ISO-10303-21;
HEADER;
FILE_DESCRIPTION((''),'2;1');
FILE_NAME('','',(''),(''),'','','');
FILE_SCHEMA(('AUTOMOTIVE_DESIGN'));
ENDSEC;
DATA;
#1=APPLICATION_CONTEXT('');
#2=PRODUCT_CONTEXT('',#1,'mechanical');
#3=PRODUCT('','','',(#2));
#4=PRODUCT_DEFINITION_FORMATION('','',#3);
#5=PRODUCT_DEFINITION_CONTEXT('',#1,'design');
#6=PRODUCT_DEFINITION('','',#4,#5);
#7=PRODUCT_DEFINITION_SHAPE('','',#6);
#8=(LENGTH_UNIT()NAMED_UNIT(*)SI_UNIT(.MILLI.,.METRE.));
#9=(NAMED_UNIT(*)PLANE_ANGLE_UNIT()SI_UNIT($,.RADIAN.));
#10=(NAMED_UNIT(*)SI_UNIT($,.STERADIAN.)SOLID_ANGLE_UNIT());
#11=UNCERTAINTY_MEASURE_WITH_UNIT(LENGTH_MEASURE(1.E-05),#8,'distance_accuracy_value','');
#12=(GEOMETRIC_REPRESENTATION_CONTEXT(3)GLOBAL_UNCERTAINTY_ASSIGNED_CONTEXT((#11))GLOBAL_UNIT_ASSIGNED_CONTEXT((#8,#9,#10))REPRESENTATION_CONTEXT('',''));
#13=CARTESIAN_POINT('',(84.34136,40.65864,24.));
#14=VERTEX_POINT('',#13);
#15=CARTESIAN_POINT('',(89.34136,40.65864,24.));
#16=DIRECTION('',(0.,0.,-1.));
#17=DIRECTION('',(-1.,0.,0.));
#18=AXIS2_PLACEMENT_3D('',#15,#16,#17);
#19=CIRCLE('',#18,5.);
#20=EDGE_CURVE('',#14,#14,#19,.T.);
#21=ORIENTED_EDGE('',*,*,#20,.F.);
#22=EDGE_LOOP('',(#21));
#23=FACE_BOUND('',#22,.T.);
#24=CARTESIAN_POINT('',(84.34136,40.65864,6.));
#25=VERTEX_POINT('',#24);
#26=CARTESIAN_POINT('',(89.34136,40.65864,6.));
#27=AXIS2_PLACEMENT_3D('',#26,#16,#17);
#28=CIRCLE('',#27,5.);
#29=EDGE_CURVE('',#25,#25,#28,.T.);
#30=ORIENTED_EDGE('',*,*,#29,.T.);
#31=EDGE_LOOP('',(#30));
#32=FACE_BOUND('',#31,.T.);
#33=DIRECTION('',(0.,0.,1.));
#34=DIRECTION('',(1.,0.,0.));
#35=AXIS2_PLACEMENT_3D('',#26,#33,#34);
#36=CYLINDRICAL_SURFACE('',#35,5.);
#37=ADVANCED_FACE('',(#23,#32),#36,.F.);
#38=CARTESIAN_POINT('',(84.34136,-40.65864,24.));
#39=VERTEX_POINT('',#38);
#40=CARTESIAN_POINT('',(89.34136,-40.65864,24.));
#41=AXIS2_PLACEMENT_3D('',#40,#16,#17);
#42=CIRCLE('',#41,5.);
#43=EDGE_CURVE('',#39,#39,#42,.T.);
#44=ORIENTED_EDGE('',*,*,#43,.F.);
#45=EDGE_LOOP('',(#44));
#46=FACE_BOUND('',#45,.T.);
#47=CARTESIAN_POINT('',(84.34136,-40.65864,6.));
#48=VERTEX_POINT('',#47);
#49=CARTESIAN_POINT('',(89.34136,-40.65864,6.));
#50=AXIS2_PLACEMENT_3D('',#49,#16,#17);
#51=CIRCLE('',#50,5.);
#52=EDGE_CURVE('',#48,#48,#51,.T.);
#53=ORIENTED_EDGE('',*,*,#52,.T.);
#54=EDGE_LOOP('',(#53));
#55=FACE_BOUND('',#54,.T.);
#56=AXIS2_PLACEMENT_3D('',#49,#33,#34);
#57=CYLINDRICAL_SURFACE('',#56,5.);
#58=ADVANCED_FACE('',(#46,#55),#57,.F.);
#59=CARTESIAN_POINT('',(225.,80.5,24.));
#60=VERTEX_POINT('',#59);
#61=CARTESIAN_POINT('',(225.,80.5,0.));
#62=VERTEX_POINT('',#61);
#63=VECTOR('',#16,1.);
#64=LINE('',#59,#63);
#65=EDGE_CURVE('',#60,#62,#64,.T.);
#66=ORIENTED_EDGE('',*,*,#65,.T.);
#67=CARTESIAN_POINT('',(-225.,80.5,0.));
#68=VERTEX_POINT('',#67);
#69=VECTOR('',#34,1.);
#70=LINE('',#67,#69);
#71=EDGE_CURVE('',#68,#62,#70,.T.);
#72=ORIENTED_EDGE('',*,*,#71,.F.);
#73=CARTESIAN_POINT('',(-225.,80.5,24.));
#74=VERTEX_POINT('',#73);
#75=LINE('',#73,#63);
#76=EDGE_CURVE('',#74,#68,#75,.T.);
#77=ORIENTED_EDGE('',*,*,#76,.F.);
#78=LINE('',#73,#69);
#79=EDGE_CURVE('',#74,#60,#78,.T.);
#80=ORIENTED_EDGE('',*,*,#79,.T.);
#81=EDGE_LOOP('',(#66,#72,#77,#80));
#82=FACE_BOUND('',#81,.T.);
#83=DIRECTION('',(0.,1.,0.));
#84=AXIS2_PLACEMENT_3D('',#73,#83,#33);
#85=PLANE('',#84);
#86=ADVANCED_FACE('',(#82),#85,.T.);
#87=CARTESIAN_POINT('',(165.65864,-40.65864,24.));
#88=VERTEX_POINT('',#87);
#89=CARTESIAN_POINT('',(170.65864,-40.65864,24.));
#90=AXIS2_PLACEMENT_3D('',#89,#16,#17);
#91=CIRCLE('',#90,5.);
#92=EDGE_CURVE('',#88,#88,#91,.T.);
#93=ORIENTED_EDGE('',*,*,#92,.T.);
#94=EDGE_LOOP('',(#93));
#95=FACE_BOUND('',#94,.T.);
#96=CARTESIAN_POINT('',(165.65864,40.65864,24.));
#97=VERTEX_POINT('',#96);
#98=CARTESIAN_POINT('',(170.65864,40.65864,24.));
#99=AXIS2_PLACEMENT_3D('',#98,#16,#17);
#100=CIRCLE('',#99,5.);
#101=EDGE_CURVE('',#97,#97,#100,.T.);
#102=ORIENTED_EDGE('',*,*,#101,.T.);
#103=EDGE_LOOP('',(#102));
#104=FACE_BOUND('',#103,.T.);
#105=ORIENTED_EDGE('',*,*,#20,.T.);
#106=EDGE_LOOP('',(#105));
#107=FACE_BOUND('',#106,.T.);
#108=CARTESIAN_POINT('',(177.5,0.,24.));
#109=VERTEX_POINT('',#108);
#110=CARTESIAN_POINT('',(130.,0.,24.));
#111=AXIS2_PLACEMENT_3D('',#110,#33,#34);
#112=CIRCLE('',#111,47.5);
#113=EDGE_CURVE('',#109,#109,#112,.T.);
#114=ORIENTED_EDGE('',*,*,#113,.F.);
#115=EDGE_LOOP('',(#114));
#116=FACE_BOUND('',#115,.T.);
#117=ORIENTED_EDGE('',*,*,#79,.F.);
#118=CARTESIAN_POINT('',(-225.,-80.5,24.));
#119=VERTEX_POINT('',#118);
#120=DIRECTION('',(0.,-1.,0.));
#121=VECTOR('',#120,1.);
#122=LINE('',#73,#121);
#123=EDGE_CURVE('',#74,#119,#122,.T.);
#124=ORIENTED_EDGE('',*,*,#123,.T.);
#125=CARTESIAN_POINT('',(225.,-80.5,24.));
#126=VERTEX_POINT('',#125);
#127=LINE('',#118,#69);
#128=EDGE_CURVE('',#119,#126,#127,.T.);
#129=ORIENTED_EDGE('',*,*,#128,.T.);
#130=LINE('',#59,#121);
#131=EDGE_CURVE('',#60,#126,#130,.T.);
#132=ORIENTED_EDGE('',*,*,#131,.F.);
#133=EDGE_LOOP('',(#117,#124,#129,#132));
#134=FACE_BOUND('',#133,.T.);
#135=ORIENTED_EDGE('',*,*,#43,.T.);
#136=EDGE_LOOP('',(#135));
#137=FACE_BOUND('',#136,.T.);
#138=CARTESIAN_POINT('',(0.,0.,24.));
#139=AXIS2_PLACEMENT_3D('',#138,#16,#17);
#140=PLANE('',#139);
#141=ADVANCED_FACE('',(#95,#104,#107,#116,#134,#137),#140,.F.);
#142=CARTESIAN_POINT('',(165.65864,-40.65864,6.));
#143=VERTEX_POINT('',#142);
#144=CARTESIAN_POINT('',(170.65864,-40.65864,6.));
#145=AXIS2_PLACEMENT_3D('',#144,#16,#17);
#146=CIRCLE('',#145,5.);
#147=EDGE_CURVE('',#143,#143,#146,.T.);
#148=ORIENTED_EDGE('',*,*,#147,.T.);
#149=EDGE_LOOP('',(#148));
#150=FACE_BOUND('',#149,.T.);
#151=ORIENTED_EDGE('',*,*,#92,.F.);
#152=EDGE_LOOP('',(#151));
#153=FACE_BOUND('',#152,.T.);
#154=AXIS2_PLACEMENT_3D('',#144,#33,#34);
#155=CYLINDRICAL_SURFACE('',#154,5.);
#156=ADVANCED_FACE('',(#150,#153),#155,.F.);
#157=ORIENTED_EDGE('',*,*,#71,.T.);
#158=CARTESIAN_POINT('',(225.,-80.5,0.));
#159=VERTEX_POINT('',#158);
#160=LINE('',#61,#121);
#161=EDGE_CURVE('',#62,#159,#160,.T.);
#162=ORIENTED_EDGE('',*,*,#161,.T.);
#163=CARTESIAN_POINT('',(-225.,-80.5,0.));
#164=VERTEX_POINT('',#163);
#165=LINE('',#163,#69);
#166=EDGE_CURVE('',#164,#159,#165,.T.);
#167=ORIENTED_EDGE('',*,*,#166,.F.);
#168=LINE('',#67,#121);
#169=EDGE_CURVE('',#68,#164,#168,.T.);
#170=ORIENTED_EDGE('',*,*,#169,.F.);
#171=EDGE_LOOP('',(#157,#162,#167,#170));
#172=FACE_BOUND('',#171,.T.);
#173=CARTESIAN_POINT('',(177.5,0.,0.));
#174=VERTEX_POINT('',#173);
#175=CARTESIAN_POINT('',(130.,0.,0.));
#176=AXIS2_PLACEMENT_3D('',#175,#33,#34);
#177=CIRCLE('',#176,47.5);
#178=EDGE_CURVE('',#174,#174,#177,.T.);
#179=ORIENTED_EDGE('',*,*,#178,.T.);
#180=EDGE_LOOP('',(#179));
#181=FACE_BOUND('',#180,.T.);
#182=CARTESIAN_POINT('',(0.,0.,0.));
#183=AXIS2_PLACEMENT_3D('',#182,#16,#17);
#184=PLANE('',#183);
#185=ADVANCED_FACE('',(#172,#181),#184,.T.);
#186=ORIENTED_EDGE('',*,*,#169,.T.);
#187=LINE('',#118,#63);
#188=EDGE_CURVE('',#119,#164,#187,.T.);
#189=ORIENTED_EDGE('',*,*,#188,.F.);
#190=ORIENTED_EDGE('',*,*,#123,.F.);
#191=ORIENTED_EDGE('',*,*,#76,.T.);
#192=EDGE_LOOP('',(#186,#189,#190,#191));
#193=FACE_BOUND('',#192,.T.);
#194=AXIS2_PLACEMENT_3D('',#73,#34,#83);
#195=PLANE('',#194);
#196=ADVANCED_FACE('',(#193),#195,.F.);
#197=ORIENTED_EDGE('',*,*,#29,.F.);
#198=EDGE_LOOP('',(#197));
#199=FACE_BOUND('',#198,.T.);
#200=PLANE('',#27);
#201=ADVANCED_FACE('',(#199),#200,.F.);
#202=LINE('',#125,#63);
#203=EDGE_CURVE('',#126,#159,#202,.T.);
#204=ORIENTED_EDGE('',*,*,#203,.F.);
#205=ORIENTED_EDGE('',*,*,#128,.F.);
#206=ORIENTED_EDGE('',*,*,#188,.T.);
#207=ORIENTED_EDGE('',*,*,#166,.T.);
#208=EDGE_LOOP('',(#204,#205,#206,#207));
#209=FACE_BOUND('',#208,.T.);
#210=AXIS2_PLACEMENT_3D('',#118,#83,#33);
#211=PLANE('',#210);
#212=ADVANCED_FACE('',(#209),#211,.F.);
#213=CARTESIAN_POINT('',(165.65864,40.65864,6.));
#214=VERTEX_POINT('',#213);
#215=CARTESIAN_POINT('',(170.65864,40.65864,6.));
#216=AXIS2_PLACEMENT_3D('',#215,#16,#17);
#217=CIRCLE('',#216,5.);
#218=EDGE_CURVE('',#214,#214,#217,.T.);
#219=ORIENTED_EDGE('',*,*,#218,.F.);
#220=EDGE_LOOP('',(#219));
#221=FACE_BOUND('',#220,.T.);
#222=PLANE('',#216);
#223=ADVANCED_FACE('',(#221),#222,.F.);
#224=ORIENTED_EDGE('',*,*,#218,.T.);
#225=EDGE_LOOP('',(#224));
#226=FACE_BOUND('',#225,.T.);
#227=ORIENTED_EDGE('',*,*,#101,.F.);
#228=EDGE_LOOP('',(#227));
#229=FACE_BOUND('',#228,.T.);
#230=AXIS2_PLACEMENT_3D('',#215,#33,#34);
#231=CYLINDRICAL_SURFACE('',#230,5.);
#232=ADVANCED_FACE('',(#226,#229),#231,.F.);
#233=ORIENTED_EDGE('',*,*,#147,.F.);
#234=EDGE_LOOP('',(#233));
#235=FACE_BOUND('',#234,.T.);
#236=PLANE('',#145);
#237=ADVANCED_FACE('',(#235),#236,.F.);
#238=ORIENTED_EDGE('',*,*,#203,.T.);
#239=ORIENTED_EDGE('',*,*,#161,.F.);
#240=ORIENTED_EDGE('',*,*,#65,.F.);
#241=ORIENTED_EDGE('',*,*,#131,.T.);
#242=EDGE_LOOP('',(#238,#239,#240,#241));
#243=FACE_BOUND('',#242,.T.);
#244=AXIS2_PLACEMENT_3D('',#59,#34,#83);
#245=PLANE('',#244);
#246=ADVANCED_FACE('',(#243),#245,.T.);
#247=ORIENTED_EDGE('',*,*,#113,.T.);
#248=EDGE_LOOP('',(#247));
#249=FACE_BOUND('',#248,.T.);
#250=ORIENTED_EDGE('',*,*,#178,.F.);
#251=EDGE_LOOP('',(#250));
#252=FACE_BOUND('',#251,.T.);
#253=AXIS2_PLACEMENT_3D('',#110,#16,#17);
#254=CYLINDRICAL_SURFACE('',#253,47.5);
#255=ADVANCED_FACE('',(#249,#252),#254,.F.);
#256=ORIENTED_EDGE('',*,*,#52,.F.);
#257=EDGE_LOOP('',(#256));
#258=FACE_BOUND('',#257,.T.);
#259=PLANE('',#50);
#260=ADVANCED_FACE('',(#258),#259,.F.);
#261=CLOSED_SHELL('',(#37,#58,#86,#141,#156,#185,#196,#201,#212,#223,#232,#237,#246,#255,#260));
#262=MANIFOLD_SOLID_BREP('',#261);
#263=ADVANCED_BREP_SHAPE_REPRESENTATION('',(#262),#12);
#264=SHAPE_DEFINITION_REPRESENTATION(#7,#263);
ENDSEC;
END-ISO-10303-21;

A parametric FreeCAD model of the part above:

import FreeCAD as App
import Part
import Sketcher
from FreeCAD import Vector
Q = App.Units.Quantity

doc = App.newDocument("Part")
body = doc.addObject("PartDesign::Body", "Body")

# Sketch on XY plane
sketch1 = body.newObject("Sketcher::SketchObject", "Sketch")
sketch1.AttachmentSupport = (doc.getObject("XY_Plane"), [""])
sketch1.MapMode = "FlatFace"
sketch1.addGeometry(Part.LineSegment(Vector(-225, 80, 0), Vector(-225, -80, 0)), False)
sketch1.addGeometry(Part.LineSegment(Vector(-225, -80, 0), Vector(225, -80, 0)), False)
sketch1.addGeometry(Part.LineSegment(Vector(225, -80, 0), Vector(225, 80, 0)), False)
sketch1.addGeometry(Part.LineSegment(Vector(225, 80, 0), Vector(-225, 80, 0)), False)
sketch1.addGeometry(Part.Circle(Vector(130, 0, 0), Vector(0, 0, 1), 48), False)
sketch1.addConstraint(Sketcher.Constraint("Coincident", 0, 2, 1, 1))
sketch1.addConstraint(Sketcher.Constraint("Coincident", 1, 2, 2, 1))
sketch1.addConstraint(Sketcher.Constraint("Coincident", 2, 2, 3, 1))
sketch1.addConstraint(Sketcher.Constraint("Coincident", 3, 2, 0, 1))
sketch1.addConstraint(Sketcher.Constraint("Vertical", 0))
sketch1.addConstraint(Sketcher.Constraint("Horizontal", 1))
sketch1.addConstraint(Sketcher.Constraint("Vertical", 2))
sketch1.addConstraint(Sketcher.Constraint("Horizontal", 3))
sketch1.addConstraint(Sketcher.Constraint("Symmetric", 0, 2, 2, 2, -1, 1))
sketch1.addConstraint(Sketcher.Constraint("PointOnObject", 4, 3, -1))
sketch1.addConstraint(Sketcher.Constraint("Diameter", 4, Q("95 mm")))
sketch1.addConstraint(Sketcher.Constraint("DistanceX", 1, 1, 1, 2, Q("450 mm")))
sketch1.addConstraint(Sketcher.Constraint("DistanceY", 0, 2, 0, 1, Q("161 mm")))
sketch1.addConstraint(Sketcher.Constraint("DistanceX", -1, 1, 4, 3, Q("130 mm")))
pad1 = body.newObject("PartDesign::Pad", "Pad")
pad1.Profile = sketch1
pad1.Length = 24

# Sketch on XY plane
sketch2 = body.newObject("Sketcher::SketchObject", "Sketch001")
sketch2.AttachmentSupport = (doc.getObject("XY_Plane"), [""])
sketch2.MapMode = "FlatFace"
sketch2.AttachmentOffset = App.Placement(Vector(0, 0, 24), App.Rotation())
sketch2.addGeometry(Part.Circle(Vector(89, 41, 0), Vector(0, 0, 1), 5), False)
sketch2.addGeometry(Part.Circle(Vector(171, 41, 0), Vector(0, 0, 1), 5), False)
sketch2.addGeometry(Part.Circle(Vector(171, -41, 0), Vector(0, 0, 1), 5), False)
sketch2.addGeometry(Part.Circle(Vector(89, -41, 0), Vector(0, 0, 1), 5), False)
sketch2.addConstraint(Sketcher.Constraint("Equal", 0, 1))
sketch2.addConstraint(Sketcher.Constraint("Equal", 1, 2))
sketch2.addConstraint(Sketcher.Constraint("Equal", 2, 3))
sketch2.addConstraint(Sketcher.Constraint("Symmetric", 1, 3, 2, 3, -1))
sketch2.addConstraint(Sketcher.Constraint("Symmetric", 0, 3, 3, 3, -1))
sketch2.addConstraint(Sketcher.Constraint("Horizontal", 0, 3, 1, 3))
sketch2.addConstraint(Sketcher.Constraint("Diameter", 0, Q("10 mm")))
sketch2.addConstraint(Sketcher.Constraint("DistanceX", -1, 1, 0, 3, Q("89.34136 mm")))
sketch2.addConstraint(Sketcher.Constraint("DistanceY", -1, 1, 0, 3, Q("40.65864 mm")))
sketch2.addConstraint(Sketcher.Constraint("DistanceX", -1, 1, 1, 3, Q("170.65864 mm")))
pocket1 = body.newObject("PartDesign::Pocket", "Pocket")
pocket1.Profile = sketch2
pocket1.Length = 18

doc.recompute()
